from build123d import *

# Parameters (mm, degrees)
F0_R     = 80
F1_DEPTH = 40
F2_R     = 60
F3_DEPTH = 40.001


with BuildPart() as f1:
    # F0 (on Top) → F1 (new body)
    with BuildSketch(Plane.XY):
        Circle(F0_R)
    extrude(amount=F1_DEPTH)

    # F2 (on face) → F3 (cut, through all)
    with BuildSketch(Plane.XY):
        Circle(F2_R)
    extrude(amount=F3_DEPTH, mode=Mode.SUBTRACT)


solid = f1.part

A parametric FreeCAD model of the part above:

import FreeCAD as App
import Part
import Sketcher

V = App.Vector
Q = App.Units.Quantity

doc = App.newDocument("Part")
body = doc.addObject("PartDesign::Body", "Body")

# Sketch on XY plane
sketch1 = body.newObject("Sketcher::SketchObject", "Sketch")
sketch1.AttachmentSupport = (doc.getObject("XY_Plane"), [""])
sketch1.MapMode = "FlatFace"
sketch1.addGeometry(Part.Circle(V(0, 0, 0), V(0, 0, 1), 80), False)
sketch1.addConstraint([
    Sketcher.Constraint("Coincident", 0, 3, -1, 1),
    Sketcher.Constraint("Diameter", 0, Q("160 mm")),
])
pad1 = body.newObject("PartDesign::Pad", "Pad")
pad1.Profile = sketch1
pad1.Length = 40

# Sketch on XY plane
sketch2 = body.newObject("Sketcher::SketchObject", "Sketch001")
sketch2.AttachmentSupport = (doc.getObject("XY_Plane"), [""])
sketch2.MapMode = "FlatFace"
sketch2.addGeometry(Part.Circle(V(0, 0, 0), V(0, 0, 1), 60), False)
sketch2.addConstraint([
    Sketcher.Constraint("Coincident", 0, 3, -1, 1),
    Sketcher.Constraint("Diameter", 0, Q("120 mm")),
])
pocket1 = body.newObject("PartDesign::Pocket", "Pocket")
pocket1.Profile = sketch2
pocket1.Type = "ThroughAll"
pocket1.Reversed = True

doc.recompute()
